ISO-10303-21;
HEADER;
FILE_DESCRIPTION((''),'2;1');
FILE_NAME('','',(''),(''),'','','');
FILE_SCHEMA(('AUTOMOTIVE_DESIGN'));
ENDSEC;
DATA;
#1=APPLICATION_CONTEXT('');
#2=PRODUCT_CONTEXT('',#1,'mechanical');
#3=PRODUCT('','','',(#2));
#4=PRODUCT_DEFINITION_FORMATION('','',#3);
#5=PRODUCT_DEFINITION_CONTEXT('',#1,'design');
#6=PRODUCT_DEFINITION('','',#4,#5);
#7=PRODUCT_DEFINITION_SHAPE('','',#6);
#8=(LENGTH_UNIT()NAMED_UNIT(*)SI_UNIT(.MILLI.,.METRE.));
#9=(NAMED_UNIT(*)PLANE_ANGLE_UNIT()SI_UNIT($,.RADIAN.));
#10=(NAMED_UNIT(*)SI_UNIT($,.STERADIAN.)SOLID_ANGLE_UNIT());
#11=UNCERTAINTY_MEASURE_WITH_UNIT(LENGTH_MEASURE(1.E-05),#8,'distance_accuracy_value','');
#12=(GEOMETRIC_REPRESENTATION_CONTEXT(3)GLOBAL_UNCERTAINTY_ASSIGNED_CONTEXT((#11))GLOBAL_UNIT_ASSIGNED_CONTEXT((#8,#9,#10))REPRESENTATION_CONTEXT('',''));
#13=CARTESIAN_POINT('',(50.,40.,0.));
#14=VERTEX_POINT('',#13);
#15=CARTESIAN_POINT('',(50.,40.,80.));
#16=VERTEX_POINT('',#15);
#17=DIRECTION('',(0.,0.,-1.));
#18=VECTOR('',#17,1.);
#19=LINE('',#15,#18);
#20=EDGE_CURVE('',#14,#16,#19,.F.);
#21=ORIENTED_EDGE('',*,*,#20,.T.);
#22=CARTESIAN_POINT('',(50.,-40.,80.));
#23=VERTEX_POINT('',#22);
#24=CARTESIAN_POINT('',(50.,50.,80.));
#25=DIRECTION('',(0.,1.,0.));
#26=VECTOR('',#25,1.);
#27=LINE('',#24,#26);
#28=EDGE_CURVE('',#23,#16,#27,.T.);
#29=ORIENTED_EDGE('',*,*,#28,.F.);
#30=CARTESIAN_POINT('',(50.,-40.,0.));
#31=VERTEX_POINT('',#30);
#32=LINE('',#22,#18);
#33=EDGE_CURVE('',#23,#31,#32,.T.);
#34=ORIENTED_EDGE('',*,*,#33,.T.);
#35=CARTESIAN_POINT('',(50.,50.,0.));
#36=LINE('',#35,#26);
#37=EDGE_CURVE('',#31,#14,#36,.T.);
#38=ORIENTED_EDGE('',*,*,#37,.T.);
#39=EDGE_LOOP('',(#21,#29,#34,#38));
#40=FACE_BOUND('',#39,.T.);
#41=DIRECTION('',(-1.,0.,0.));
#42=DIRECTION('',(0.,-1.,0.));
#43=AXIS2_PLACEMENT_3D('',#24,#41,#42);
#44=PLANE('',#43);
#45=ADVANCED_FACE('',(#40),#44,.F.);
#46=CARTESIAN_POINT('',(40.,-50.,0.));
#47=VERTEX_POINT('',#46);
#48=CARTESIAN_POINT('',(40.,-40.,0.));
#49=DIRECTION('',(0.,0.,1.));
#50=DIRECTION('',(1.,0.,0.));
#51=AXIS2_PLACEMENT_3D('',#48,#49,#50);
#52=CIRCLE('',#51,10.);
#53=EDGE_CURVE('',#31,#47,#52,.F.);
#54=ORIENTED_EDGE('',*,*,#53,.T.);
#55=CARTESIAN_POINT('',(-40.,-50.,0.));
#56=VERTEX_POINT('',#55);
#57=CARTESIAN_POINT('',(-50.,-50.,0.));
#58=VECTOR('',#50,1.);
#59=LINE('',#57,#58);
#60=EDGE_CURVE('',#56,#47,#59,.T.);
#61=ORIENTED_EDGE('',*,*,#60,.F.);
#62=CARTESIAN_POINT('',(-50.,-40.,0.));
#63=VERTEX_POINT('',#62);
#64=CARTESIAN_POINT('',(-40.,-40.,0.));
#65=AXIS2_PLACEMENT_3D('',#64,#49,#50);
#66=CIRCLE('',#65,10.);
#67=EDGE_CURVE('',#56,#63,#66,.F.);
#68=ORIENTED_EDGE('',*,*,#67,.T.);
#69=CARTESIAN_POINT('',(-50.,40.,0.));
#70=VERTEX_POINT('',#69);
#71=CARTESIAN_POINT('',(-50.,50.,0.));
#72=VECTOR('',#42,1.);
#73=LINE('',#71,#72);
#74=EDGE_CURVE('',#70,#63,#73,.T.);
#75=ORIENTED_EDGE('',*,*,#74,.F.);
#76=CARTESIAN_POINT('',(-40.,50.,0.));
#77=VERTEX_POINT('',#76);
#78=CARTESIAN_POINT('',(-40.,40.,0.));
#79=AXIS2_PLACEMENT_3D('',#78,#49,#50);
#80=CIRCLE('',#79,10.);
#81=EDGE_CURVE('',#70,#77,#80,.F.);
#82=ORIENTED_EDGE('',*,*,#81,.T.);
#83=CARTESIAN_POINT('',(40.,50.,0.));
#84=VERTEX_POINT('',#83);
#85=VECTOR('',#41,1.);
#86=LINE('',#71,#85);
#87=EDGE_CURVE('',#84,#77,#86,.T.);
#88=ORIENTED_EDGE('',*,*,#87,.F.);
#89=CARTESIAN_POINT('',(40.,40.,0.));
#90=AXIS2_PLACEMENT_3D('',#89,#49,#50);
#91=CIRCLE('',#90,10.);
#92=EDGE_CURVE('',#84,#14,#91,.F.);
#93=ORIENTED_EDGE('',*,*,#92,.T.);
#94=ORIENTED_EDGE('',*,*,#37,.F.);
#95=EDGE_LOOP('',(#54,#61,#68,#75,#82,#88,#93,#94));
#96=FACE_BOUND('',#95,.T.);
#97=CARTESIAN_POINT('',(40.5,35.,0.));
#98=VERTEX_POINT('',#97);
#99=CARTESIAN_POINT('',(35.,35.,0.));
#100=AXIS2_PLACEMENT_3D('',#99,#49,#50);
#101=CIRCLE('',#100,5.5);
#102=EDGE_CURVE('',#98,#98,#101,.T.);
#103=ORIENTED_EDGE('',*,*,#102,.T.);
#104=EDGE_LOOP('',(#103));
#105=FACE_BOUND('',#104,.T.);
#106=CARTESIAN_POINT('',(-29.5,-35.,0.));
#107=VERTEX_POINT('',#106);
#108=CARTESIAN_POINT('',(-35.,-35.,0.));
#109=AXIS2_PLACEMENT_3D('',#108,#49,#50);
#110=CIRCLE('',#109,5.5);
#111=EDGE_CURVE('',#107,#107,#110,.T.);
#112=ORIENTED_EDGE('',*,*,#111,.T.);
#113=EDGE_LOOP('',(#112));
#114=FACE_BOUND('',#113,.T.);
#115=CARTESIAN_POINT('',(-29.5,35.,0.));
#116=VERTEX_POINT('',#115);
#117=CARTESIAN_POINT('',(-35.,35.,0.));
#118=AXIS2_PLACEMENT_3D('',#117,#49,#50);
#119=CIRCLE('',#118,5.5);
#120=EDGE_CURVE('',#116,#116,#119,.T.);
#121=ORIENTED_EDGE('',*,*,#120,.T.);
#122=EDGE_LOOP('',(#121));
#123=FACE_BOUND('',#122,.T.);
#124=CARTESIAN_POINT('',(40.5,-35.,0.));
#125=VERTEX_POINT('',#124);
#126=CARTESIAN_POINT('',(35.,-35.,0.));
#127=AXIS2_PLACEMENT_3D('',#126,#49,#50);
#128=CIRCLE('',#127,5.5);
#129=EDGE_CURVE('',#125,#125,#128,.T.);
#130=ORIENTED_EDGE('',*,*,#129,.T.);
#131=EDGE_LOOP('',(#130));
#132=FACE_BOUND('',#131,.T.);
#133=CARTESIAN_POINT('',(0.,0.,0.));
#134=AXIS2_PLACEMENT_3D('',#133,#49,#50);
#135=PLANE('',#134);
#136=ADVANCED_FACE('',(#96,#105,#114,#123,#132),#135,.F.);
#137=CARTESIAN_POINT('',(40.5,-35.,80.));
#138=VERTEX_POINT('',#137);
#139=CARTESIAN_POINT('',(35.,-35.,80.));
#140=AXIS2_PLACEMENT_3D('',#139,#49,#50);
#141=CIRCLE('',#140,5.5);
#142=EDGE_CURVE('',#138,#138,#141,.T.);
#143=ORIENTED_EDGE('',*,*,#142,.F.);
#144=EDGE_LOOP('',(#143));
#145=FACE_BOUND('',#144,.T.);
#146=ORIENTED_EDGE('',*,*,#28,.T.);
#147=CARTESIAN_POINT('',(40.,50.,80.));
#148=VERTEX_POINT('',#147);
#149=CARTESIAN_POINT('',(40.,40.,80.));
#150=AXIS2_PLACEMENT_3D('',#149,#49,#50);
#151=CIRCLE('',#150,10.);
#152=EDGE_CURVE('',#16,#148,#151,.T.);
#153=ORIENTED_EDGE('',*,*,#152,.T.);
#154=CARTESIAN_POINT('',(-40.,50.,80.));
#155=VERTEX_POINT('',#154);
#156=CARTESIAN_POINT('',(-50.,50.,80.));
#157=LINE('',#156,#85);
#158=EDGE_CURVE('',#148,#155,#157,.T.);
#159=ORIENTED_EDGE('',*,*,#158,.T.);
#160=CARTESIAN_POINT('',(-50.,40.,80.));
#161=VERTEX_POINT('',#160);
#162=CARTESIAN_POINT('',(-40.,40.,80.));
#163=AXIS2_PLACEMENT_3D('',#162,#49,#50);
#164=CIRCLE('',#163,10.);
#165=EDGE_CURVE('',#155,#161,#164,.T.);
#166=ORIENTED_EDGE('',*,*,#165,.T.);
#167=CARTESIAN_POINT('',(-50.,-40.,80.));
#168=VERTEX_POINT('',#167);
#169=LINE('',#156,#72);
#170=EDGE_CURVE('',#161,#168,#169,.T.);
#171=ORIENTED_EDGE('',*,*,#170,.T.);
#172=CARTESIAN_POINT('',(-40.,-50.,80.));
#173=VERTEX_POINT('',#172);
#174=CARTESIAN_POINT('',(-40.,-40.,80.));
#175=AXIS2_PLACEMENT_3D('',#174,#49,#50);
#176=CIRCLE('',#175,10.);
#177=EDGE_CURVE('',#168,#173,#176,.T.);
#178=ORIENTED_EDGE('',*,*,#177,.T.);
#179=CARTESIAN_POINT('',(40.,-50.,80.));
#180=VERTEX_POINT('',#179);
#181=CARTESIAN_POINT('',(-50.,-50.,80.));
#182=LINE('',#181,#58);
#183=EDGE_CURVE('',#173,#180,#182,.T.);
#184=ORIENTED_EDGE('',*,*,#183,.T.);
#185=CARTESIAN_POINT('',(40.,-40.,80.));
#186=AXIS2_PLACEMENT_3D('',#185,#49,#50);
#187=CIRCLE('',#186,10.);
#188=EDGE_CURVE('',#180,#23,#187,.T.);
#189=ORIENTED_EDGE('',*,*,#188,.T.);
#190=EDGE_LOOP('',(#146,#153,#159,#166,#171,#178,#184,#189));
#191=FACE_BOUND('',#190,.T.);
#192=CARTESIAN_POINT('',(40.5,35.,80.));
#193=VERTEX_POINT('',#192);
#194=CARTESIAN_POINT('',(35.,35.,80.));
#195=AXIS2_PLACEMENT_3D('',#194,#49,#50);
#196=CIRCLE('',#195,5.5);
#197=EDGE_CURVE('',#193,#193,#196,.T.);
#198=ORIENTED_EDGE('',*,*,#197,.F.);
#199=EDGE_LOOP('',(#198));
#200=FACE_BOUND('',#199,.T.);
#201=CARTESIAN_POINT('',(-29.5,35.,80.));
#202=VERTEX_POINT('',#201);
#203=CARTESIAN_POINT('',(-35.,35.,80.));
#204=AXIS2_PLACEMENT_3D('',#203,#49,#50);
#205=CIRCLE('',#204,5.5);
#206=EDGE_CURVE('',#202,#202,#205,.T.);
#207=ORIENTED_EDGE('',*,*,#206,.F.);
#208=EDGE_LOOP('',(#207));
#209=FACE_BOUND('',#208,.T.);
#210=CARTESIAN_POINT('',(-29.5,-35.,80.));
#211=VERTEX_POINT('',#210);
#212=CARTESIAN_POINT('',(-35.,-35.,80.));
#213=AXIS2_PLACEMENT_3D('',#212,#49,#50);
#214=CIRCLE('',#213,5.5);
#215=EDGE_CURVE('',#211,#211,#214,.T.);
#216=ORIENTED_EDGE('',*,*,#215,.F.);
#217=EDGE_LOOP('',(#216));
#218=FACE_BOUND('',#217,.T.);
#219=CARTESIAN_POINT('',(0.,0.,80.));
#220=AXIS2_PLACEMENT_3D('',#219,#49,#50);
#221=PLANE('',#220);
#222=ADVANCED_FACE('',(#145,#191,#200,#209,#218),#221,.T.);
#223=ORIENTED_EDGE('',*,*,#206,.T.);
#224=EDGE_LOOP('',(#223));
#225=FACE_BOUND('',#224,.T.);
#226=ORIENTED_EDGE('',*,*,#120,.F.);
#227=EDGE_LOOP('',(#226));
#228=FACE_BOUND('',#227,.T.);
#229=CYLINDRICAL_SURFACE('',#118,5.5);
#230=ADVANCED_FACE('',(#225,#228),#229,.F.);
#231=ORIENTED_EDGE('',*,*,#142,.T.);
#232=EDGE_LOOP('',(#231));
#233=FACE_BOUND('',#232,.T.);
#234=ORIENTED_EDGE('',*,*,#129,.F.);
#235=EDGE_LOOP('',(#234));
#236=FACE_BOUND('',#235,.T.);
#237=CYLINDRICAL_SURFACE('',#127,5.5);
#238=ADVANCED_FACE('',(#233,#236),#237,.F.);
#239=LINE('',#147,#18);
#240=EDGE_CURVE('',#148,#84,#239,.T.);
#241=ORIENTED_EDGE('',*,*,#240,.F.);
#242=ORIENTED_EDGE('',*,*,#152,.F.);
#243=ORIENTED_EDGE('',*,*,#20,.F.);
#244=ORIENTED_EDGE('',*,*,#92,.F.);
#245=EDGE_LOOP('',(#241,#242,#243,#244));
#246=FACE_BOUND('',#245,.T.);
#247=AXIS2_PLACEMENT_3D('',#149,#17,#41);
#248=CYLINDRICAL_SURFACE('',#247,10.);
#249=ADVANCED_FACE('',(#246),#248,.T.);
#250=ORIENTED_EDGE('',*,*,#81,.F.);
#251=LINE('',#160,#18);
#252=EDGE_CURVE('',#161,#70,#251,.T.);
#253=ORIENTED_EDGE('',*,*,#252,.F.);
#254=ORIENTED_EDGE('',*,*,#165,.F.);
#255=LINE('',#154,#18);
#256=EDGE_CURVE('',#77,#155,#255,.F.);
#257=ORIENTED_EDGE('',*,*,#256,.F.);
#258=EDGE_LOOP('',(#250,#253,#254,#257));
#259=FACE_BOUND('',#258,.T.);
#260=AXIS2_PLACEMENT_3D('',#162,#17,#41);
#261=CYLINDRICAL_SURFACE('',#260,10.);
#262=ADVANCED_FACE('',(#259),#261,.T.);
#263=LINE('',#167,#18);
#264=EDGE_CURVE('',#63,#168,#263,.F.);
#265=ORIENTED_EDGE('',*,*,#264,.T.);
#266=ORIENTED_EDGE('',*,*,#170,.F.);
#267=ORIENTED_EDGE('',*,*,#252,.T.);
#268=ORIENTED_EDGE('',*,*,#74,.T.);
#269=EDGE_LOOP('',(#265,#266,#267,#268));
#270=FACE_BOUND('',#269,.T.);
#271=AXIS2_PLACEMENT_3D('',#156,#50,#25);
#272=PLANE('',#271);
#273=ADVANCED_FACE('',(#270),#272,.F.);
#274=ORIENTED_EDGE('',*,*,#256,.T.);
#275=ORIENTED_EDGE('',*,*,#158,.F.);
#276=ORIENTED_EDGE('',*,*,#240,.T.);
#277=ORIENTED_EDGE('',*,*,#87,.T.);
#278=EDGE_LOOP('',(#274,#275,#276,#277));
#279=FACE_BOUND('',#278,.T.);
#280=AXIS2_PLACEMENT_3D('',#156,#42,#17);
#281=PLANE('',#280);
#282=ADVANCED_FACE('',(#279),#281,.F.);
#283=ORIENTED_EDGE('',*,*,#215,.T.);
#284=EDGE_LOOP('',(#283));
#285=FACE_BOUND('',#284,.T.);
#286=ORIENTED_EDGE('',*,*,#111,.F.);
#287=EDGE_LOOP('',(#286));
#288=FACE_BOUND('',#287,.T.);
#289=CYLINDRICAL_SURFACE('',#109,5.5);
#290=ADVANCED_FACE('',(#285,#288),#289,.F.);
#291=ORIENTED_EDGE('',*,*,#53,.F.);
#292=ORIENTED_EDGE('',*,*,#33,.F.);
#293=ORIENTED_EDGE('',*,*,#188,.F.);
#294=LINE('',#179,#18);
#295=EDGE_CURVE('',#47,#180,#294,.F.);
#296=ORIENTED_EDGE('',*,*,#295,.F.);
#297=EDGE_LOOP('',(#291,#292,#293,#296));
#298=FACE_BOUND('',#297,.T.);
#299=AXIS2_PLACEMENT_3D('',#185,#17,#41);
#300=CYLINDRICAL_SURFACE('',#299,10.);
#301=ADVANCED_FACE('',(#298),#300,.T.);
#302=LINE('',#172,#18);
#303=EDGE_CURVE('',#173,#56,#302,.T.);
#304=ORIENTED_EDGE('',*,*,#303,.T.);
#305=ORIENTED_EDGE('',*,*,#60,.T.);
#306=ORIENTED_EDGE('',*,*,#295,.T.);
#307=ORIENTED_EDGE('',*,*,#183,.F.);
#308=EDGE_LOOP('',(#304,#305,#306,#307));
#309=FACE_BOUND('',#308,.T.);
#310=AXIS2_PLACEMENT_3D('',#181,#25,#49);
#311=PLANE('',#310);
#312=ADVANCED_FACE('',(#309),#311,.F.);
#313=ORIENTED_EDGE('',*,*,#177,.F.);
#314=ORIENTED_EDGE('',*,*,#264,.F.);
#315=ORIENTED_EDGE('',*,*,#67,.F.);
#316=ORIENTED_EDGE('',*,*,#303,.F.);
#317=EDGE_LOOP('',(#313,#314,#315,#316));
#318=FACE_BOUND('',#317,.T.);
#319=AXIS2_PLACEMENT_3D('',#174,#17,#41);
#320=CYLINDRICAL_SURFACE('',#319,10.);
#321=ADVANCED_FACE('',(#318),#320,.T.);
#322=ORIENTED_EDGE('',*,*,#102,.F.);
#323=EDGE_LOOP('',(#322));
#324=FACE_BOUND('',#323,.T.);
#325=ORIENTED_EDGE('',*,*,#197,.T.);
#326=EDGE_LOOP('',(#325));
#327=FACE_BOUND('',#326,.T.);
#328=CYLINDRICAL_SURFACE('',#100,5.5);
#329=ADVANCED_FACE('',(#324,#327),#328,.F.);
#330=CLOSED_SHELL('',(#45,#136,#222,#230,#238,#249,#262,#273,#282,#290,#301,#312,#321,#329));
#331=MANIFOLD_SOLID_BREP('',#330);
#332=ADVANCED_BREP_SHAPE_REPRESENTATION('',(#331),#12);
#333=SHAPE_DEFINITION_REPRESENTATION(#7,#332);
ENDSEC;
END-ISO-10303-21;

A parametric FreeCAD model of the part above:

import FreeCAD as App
import Part
import Sketcher
from FreeCAD import Vector


def edges_at(feature, points):
    """Names of the edges that pass closest to the given points."""
    edges = feature.Shape.Edges
    near = lambda p: min(range(len(edges)), key=lambda i: edges[i].distToShape(Part.Vertex(*p))[0])
    return sorted({f"Edge{near(p) + 1}" for p in points})

doc = App.newDocument("Part")
body = doc.addObject("PartDesign::Body", "Body")

# Sketch on XY plane
sketch1 = doc.addObject("Sketcher::SketchObject", "Sketch")
body.addObject(sketch1)
sketch1.AttachmentSupport = (doc.XY_Plane, [""])
sketch1.MapMode = "FlatFace"
sketch1.addGeometry([
    Part.LineSegment(Vector(-50, 50, 0), Vector(-50, -50, 0)),
    Part.LineSegment(Vector(-50, -50, 0), Vector(50, -50, 0)),
    Part.LineSegment(Vector(50, -50, 0), Vector(50, 50, 0)),
    Part.LineSegment(Vector(50, 50, 0), Vector(-50, 50, 0)),
], False)
sketch1.addConstraint([
    Sketcher.Constraint("Coincident", 0, 2, 1, 1),
    Sketcher.Constraint("Coincident", 1, 2, 2, 1),
    Sketcher.Constraint("Coincident", 2, 2, 3, 1),
    Sketcher.Constraint("Coincident", 3, 2, 0, 1),
    Sketcher.Constraint("Vertical", 0),
    Sketcher.Constraint("Horizontal", 1),
    Sketcher.Constraint("Vertical", 2),
    Sketcher.Constraint("Horizontal", 3),
    Sketcher.Constraint("Symmetric", 0, 2, 2, 2, -1, 1),
    Sketcher.Constraint("Equal", 3, 0),
    Sketcher.Constraint("DistanceX", 1, 1, 1, 2, 100.0),
])
pad1 = doc.addObject("PartDesign::Pad", "Pad")
body.addObject(pad1)
pad1.Profile = sketch1
pad1.Length = 80

# Sketch on XY plane
sketch2 = doc.addObject("Sketcher::SketchObject", "Sketch001")
body.addObject(sketch2)
sketch2.AttachmentSupport = (doc.XY_Plane, [""])
sketch2.MapMode = "FlatFace"
sketch2.AttachmentOffset = App.Placement(Vector(0, 0, 80), App.Rotation())
sketch2.addGeometry([
    Part.Circle(Vector(-35, 35, 0), Vector(0, 0, 1), 6),
    Part.Circle(Vector(35, 35, 0), Vector(0, 0, 1), 6),
    Part.Circle(Vector(-35, -35, 0), Vector(0, 0, 1), 6),
    Part.Circle(Vector(35, -35, 0), Vector(0, 0, 1), 6),
], False)
sketch2.addConstraint([
    Sketcher.Constraint("Equal", 0, 1),
    Sketcher.Constraint("Equal", 1, 2),
    Sketcher.Constraint("Equal", 2, 3),
    Sketcher.Constraint("Symmetric", 1, 3, 2, 3, -1, 1),
    Sketcher.Constraint("Symmetric", 0, 3, 3, 3, -1, 1),
    Sketcher.Constraint("Symmetric", 0, 3, 1, 3, -2),
    Sketcher.Constraint("Diameter", 0, 11.0),
    Sketcher.Constraint("DistanceX", 0, 3, -1, 1, 35.0),
    Sketcher.Constraint("DistanceY", -1, 1, 0, 3, 35.0),
])
pocket1 = doc.addObject("PartDesign::Pocket", "Pocket")
body.addObject(pocket1)
pocket1.Profile = sketch2
pocket1.Type = "ThroughAll"
doc.recompute()

fillet = doc.addObject("PartDesign::Fillet", "Fillet")
body.addObject(fillet)
fillet.Base = (pocket1, edges_at(pocket1, [(-50, 50, 40)]))
fillet.Radius = 10
doc.recompute()

fillet2 = doc.addObject("PartDesign::Fillet", "Fillet001")
body.addObject(fillet2)
fillet2.Base = (fillet, edges_at(fillet, [(50, -50, 40), (-50, -50, 40), (50, 50, 40)]))
fillet2.Radius = 10

doc.recompute()
